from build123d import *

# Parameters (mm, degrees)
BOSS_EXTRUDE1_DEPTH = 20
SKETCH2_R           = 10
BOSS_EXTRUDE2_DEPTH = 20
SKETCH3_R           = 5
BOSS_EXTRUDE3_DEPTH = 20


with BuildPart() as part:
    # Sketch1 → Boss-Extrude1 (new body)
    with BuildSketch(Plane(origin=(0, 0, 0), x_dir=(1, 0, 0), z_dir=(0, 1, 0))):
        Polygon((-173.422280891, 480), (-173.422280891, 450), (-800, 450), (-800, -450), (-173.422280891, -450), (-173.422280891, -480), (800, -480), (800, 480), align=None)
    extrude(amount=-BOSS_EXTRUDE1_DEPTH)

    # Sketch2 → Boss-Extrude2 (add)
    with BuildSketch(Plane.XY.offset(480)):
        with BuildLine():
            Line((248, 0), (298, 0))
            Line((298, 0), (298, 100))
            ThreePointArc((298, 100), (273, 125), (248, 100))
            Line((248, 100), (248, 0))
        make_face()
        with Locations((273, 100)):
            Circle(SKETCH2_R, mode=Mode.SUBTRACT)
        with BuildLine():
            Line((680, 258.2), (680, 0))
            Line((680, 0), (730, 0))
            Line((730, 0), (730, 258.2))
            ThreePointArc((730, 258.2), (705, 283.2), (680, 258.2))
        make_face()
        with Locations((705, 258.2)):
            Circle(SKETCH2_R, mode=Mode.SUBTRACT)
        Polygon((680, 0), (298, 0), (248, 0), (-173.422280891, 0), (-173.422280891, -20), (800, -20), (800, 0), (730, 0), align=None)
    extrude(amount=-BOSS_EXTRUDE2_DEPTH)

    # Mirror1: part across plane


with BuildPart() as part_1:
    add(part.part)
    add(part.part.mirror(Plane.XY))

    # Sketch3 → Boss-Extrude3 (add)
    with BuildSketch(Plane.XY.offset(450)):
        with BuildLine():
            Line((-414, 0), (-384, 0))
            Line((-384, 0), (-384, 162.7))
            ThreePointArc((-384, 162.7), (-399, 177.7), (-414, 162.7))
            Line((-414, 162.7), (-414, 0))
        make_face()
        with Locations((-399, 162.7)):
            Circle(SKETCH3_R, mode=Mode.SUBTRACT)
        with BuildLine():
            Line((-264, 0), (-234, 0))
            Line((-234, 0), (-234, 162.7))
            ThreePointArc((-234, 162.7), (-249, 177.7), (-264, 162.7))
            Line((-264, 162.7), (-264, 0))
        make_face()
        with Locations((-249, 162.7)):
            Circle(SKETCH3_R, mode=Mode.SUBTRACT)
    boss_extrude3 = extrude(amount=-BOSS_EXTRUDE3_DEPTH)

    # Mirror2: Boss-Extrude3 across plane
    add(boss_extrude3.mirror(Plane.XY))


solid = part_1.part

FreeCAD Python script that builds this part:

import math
import FreeCAD as App
import Part
import Sketcher
from FreeCAD import Vector


def add_polygon(sketch, points):
    """Adds a closed chain of lines whose ends are joined by coincident constraints."""
    first, n = sketch.GeometryCount, len(points)
    for a, b in zip(points, points[1:] + points[:1]):
        sketch.addGeometry(Part.LineSegment(App.Vector(*a, 0), App.Vector(*b, 0)), False)
    for i in range(n):
        sketch.addConstraint(Sketcher.Constraint("Coincident", first + i, 2, first + (i + 1) % n, 1))

doc = App.newDocument("Part")
body = doc.addObject("PartDesign::Body", "Body")

# Sketch on XZ plane
sketch1 = doc.addObject("Sketcher::SketchObject", "Sketch")
body.addObject(sketch1)
sketch1.AttachmentSupport = (doc.XZ_Plane, [""])
sketch1.MapMode = "FlatFace"
add_polygon(sketch1, [(-173, -480), (-173, -450), (-800, -450), (-800, 450), (-173, 450), (-173, 480), (800, 480), (800, -480)])  # lines 0-7
sketch1.addConstraint([
    Sketcher.Constraint("Vertical", 0),
    Sketcher.Constraint("Horizontal", 1),
    Sketcher.Constraint("Vertical", 2),
    Sketcher.Constraint("Horizontal", 3),
    Sketcher.Constraint("Vertical", 4),
    Sketcher.Constraint("Horizontal", 5),
    Sketcher.Constraint("Vertical", 6),
    Sketcher.Constraint("Horizontal", 7),
    Sketcher.Constraint("Symmetric", 0, 2, 3, 2, -1),
    Sketcher.Constraint("Equal", 0, 4),
    Sketcher.Constraint("DistanceY", 0, 1, 0, 2, 30.0),
    Sketcher.Constraint("DistanceY", 2, 1, 2, 2, 900.0),
    Sketcher.Constraint("DistanceX", 1, 2, -1, 1, 800.0),
    Sketcher.Constraint("DistanceX", -1, 1, 5, 2, 800.0),
    Sketcher.Constraint("DistanceX", 1, 2, 1, 1, 626.577719),
])
pad1 = doc.addObject("PartDesign::Pad", "Pad")
body.addObject(pad1)
pad1.Profile = sketch1
pad1.Length = 20

# Sketch on XY plane
sketch2 = doc.addObject("Sketcher::SketchObject", "Sketch001")
body.addObject(sketch2)
sketch2.AttachmentSupport = (doc.XY_Plane, [""])
sketch2.MapMode = "FlatFace"
sketch2.AttachmentOffset = App.Placement(Vector(0, 0, 480), App.Rotation())
sketch2.addGeometry([
    Part.ArcOfCircle(Part.Circle(Vector(273, 100, 0), Vector(0, 0, 1), 25), math.radians(0), math.radians(180)),  # 0
    Part.LineSegment(Vector(248, 100, 0), Vector(248, 0, 0)),  # 1
    Part.LineSegment(Vector(248, 0, 0), Vector(-173, 0, 0)),  # 2
    Part.LineSegment(Vector(-173, 0, 0), Vector(-173, -20, 0)),  # 3
    Part.LineSegment(Vector(-173, -20, 0), Vector(800, -20, 0)),  # 4
    Part.LineSegment(Vector(800, -20, 0), Vector(800, 0, 0)),  # 5
    Part.LineSegment(Vector(800, 0, 0), Vector(730, 0, 0)),  # 6
    Part.LineSegment(Vector(730, 0, 0), Vector(730, 258, 0)),  # 7
    Part.ArcOfCircle(Part.Circle(Vector(705, 258, 0), Vector(0, 0, 1), 25), math.radians(0), math.radians(180)),  # 8
    Part.LineSegment(Vector(680, 258, 0), Vector(680, 0, 0)),  # 9
    Part.LineSegment(Vector(680, 0, 0), Vector(298, 0, 0)),  # 10
    Part.LineSegment(Vector(298, 0, 0), Vector(298, 100, 0)),  # 11
    Part.Circle(Vector(273, 100, 0), Vector(0, 0, 1), 10),  # 12
    Part.Circle(Vector(705, 258, 0), Vector(0, 0, 1), 10),  # 13
], False)
sketch2.addConstraint([
    Sketcher.Constraint("Tangent", 0, 2, 1, 1),
    Sketcher.Constraint("Coincident", 1, 2, 2, 1),
    Sketcher.Constraint("Coincident", 2, 2, 3, 1),
    Sketcher.Constraint("Coincident", 3, 2, 4, 1),
    Sketcher.Constraint("Coincident", 4, 2, 5, 1),
    Sketcher.Constraint("Coincident", 5, 2, 6, 1),
    Sketcher.Constraint("Coincident", 6, 2, 7, 1),
    Sketcher.Constraint("Tangent", 7, 2, 8, 1),
    Sketcher.Constraint("Tangent", 8, 2, 9, 1),
    Sketcher.Constraint("Coincident", 9, 2, 10, 1),
    Sketcher.Constraint("Coincident", 10, 2, 11, 1),
    Sketcher.Constraint("Tangent", 11, 2, 0, 1),
    Sketcher.Constraint("Vertical", 1),
    Sketcher.Constraint("Horizontal", 2),
    Sketcher.Constraint("Vertical", 3),
    Sketcher.Constraint("Horizontal", 4),
    Sketcher.Constraint("Vertical", 5),
    Sketcher.Constraint("Horizontal", 6),
    Sketcher.Constraint("Vertical", 7),
    Sketcher.Constraint("Vertical", 9),
    Sketcher.Constraint("Horizontal", 10),
    Sketcher.Constraint("Vertical", 11),
    Sketcher.Constraint("Coincident", 12, 3, 0, 3),
    Sketcher.Constraint("Coincident", 13, 3, 8, 3),
    Sketcher.Constraint("Equal", 0, 8),
    Sketcher.Constraint("Equal", 12, 13),
    Sketcher.Constraint("PointOnObject", 1, 2, -1),
    Sketcher.Constraint("PointOnObject", 5, 2, -1),
    Sketcher.Constraint("PointOnObject", 9, 2, -1),
    Sketcher.Constraint("Diameter", 12, 20.0),
    Sketcher.Constraint("Radius", 0, 25.0),
    Sketcher.Constraint("DistanceX", 6, 2, 6, 1, 70.0),
    Sketcher.Constraint("DistanceX", 10, 2, 10, 1, 382.0),
    Sketcher.Constraint("DistanceY", 1, 2, 1, 1, 100.0),
    Sketcher.Constraint("DistanceY", 3, 2, 3, 1, 20.0),
    Sketcher.Constraint("DistanceY", 7, 1, 7, 2, 258.2),
    Sketcher.Constraint("DistanceX", -1, 1, 0, 3, 273.0),
    Sketcher.Constraint("DistanceX", 2, 2, 2, 1, 421.422281),
])
pad2 = doc.addObject("PartDesign::Pad", "Pad001")
body.addObject(pad2)
pad2.Profile = sketch2
pad2.Length = 20
pad2.Reversed = True
body2 = doc.addObject("PartDesign::Body", "Body001")
doc.recompute()

body2.BaseFeature = body
doc.recompute()

mirroring = doc.addObject("Part::Mirroring", "Mirroring")
mirroring.Source = body
mirroring.Base = Vector(0, 0, 0)
mirroring.Normal = Vector(0, 0, 1)
body3 = doc.addObject("PartDesign::Body", "Body002")
body3.BaseFeature = mirroring
boolean = doc.addObject("PartDesign::Boolean", "Boolean")
body2.addObject(boolean)
boolean.Type = "Fuse"
boolean.addObjects([body3])
doc.recompute()

# Sketch on XY plane
sketch3 = doc.addObject("Sketcher::SketchObject", "Sketch002")
body2.addObject(sketch3)
sketch3.AttachmentSupport = (doc.getObject("XY_Plane001"), [""])
sketch3.MapMode = "FlatFace"
sketch3.AttachmentOffset = App.Placement(Vector(0, 0, 450), App.Rotation())
sketch3.addGeometry([
    Part.LineSegment(Vector(-414, 0, 0), Vector(-384, 0, 0)),  # 0
    Part.LineSegment(Vector(-384, 0, 0), Vector(-384, 163, 0)),  # 1
    Part.ArcOfCircle(Part.Circle(Vector(-399, 163, 0), Vector(0, 0, 1), 15), math.radians(0), math.radians(180)),  # 2
    Part.LineSegment(Vector(-414, 163, 0), Vector(-414, 0, 0)),  # 3
    Part.Circle(Vector(-399, 163, 0), Vector(0, 0, 1), 5),  # 4
    Part.LineSegment(Vector(-264, 0, 0), Vector(-234, 0, 0)),  # 5
    Part.LineSegment(Vector(-234, 0, 0), Vector(-234, 163, 0)),  # 6
    Part.ArcOfCircle(Part.Circle(Vector(-249, 163, 0), Vector(0, 0, 1), 15), math.radians(0), math.radians(180)),  # 7
    Part.LineSegment(Vector(-264, 163, 0), Vector(-264, 0, 0)),  # 8
    Part.Circle(Vector(-249, 163, 0), Vector(0, 0, 1), 5),  # 9
], False)
sketch3.addConstraint([
    Sketcher.Constraint("Coincident", 0, 2, 1, 1),
    Sketcher.Constraint("Tangent", 1, 2, 2, 1),
    Sketcher.Constraint("Tangent", 2, 2, 3, 1),
    Sketcher.Constraint("Coincident", 3, 2, 0, 1),
    Sketcher.Constraint("Coincident", 5, 2, 6, 1),
    Sketcher.Constraint("Tangent", 6, 2, 7, 1),
    Sketcher.Constraint("Tangent", 7, 2, 8, 1),
    Sketcher.Constraint("Coincident", 8, 2, 5, 1),
    Sketcher.Constraint("Horizontal", 0),
    Sketcher.Constraint("Vertical", 1),
    Sketcher.Constraint("Vertical", 3),
    Sketcher.Constraint("Horizontal", 5),
    Sketcher.Constraint("Vertical", 6),
    Sketcher.Constraint("Vertical", 8),
    Sketcher.Constraint("Coincident", 4, 3, 2, 3),
    Sketcher.Constraint("Coincident", 9, 3, 7, 3),
    Sketcher.Constraint("Equal", 2, 7),
    Sketcher.Constraint("Equal", 4, 9),
    Sketcher.Constraint("PointOnObject", 0, 2, -1),
    Sketcher.Constraint("PointOnObject", 5, 2, -1),
    Sketcher.Constraint("Horizontal", 4, 3, 7, 3),
    Sketcher.Constraint("Diameter", 4, 10.0),
    Sketcher.Constraint("Radius", 2, 15.0),
    Sketcher.Constraint("DistanceY", 1, 1, 1, 2, 162.7),
    Sketcher.Constraint("DistanceX", 2, 3, -1, 1, 399.0),
    Sketcher.Constraint("DistanceX", 7, 3, -1, 1, 249.0),
])
pad3 = doc.addObject("PartDesign::Pad", "Pad002")
body2.addObject(pad3)
pad3.Profile = sketch3
pad3.Length = 20
pad3.Reversed = True
doc.recompute()

mirrored = doc.addObject("PartDesign::Mirrored", "Mirrored")
body2.addObject(mirrored)
mirrored.Originals = [pad3]
mirrored.MirrorPlane = (doc.getObject("XY_Plane001"), [""])
body2.Tip = mirrored
mirroring.Visibility = False

doc.recompute()
